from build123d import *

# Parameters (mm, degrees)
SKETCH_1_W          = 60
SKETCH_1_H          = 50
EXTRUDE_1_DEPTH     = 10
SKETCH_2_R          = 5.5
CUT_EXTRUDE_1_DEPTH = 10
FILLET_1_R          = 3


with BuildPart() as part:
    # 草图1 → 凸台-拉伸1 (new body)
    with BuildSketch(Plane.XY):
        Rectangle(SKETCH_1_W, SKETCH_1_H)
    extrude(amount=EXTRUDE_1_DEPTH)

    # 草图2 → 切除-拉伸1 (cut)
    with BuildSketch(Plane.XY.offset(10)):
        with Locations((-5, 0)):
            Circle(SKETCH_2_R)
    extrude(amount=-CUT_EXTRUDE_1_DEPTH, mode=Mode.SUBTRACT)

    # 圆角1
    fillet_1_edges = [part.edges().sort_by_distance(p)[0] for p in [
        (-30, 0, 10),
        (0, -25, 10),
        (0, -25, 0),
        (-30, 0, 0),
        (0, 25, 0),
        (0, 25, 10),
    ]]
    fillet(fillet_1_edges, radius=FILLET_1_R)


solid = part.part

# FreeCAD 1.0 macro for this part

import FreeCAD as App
import Part
import Sketcher
from FreeCAD import Vector
Q = App.Units.Quantity


def edges_at(feature, points):
    """Names of the edges that pass closest to the given points."""
    edges = feature.Shape.Edges
    near = lambda p: min(range(len(edges)), key=lambda i: edges[i].distToShape(Part.Vertex(*p))[0])
    return sorted({f"Edge{near(p) + 1}" for p in points})


def add_polygon(sketch, points):
    """Adds a closed chain of lines whose ends are joined by coincident constraints."""
    first, n = sketch.GeometryCount, len(points)
    for a, b in zip(points, points[1:] + points[:1]):
        sketch.addGeometry(Part.LineSegment(App.Vector(*a, 0), App.Vector(*b, 0)), False)
    for i in range(n):
        sketch.addConstraint(Sketcher.Constraint("Coincident", first + i, 2, first + (i + 1) % n, 1))

doc = App.newDocument("Part")
body = doc.addObject("PartDesign::Body", "Body")

# Sketch on XY plane
sketch1 = body.newObject("Sketcher::SketchObject", "Sketch")
sketch1.AttachmentSupport = (doc.getObject("XY_Plane"), [""])
sketch1.MapMode = "FlatFace"
add_polygon(sketch1, [(-30, 25), (-30, -25), (30, -25), (30, 25)])  # lines 0-3
sketch1.addConstraint([
    Sketcher.Constraint("Vertical", 0),
    Sketcher.Constraint("Horizontal", 1),
    Sketcher.Constraint("Vertical", 2),
    Sketcher.Constraint("Horizontal", 3),
    Sketcher.Constraint("Symmetric", 0, 2, 2, 2, -1, 1),
    Sketcher.Constraint("DistanceX", 1, 1, 1, 2, Q("60 mm")),
    Sketcher.Constraint("DistanceY", 0, 2, 0, 1, Q("50 mm")),
])
pad1 = body.newObject("PartDesign::Pad", "Pad")
pad1.Profile = sketch1
pad1.Length = 10

# Sketch on XY plane
sketch2 = body.newObject("Sketcher::SketchObject", "Sketch001")
sketch2.AttachmentSupport = (doc.getObject("XY_Plane"), [""])
sketch2.MapMode = "FlatFace"
sketch2.AttachmentOffset = App.Placement(Vector(0, 0, 10), App.Rotation())
sketch2.addGeometry(Part.Circle(Vector(-5, 0, 0), Vector(0, 0, 1), 6), False)
sketch2.addConstraint([
    Sketcher.Constraint("PointOnObject", 0, 3, -1),
    Sketcher.Constraint("Diameter", 0, Q("11 mm")),
    Sketcher.Constraint("DistanceX", 0, 3, -1, 1, Q("5 mm")),
])
pocket1 = body.newObject("PartDesign::Pocket", "Pocket")
pocket1.Profile = sketch2
pocket1.Length = 10
doc.recompute()

fillet = body.newObject("PartDesign::Fillet", "Fillet")
fillet.Base = (pocket1, edges_at(pocket1, [
    (-30, 0, 10),
    (0, -25, 10),
    (0, -25, 0),
    (-30, 0, 0),
    (0, 25, 0),
    (0, 25, 10),
]))
fillet.Radius = 3

doc.recompute()
